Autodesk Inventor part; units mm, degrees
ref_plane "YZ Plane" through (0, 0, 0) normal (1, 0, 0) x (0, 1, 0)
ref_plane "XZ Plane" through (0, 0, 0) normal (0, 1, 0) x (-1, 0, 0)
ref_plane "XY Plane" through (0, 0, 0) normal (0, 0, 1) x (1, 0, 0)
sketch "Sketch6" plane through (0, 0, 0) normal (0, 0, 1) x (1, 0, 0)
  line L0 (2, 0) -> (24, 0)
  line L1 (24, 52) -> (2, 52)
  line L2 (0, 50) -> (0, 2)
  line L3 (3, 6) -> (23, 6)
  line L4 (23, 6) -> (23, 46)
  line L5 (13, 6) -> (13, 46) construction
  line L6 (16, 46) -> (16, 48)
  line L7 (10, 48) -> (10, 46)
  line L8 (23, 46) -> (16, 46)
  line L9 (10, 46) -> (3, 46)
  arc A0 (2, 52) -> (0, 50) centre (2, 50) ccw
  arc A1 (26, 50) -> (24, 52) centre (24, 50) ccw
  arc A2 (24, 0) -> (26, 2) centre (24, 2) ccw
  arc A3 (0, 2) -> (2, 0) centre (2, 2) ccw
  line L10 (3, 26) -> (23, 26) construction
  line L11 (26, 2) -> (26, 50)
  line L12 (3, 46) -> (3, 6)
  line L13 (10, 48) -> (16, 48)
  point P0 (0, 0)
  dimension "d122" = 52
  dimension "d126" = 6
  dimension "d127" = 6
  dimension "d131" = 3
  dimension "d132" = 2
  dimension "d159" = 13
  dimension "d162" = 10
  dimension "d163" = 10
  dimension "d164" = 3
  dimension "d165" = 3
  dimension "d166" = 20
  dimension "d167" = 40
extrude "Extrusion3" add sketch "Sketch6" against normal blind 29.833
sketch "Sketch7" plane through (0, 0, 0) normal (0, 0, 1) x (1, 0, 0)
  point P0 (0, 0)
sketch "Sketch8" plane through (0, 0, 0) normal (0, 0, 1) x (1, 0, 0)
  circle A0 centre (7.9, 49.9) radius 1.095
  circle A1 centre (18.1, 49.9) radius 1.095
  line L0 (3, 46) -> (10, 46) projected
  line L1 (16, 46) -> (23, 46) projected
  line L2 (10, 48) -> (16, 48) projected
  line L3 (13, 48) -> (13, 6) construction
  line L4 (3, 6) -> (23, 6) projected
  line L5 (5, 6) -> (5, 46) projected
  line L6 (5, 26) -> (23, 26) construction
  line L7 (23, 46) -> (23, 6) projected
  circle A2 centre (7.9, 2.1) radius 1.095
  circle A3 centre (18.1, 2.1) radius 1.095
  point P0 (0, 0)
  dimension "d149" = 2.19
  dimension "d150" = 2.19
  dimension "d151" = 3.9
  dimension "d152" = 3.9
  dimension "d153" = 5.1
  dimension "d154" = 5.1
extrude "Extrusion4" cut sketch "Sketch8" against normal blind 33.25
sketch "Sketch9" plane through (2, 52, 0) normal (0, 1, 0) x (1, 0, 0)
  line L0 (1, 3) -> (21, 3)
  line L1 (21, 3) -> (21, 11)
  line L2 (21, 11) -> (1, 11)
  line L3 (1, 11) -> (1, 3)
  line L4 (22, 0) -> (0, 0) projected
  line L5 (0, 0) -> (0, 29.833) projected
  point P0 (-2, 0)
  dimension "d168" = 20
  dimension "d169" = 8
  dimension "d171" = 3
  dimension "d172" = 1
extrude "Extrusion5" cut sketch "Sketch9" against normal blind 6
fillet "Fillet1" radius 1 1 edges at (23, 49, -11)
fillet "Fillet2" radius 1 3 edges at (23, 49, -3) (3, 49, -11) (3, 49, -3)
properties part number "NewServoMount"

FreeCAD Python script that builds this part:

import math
import FreeCAD as App
import Part
import Sketcher
from FreeCAD import Vector
Q = App.Units.Quantity


def edges_at(feature, points):
    """Names of the edges that pass closest to the given points."""
    edges = feature.Shape.Edges
    near = lambda p: min(range(len(edges)), key=lambda i: edges[i].distToShape(Part.Vertex(*p))[0])
    return sorted({f"Edge{near(p) + 1}" for p in points})


def add_polygon(sketch, points):
    """Adds a closed chain of lines whose ends are joined by coincident constraints."""
    first, n = sketch.GeometryCount, len(points)
    for a, b in zip(points, points[1:] + points[:1]):
        sketch.addGeometry(Part.LineSegment(App.Vector(*a, 0), App.Vector(*b, 0)), False)
    for i in range(n):
        sketch.addConstraint(Sketcher.Constraint("Coincident", first + i, 2, first + (i + 1) % n, 1))

doc = App.newDocument("Part")
body = doc.addObject("PartDesign::Body", "Body")

# Sketch on XY plane
sketch1 = body.newObject("Sketcher::SketchObject", "Sketch")
sketch1.AttachmentSupport = (doc.getObject("XY_Plane"), [""])
sketch1.MapMode = "FlatFace"
sketch1.addGeometry(Part.ArcOfCircle(Part.Circle(Vector(2, 2, 0), Vector(0, 0, 1), 2), math.radians(180), math.radians(270)), False)  # 0
sketch1.addGeometry(Part.LineSegment(Vector(2, 0, 0), Vector(24, 0, 0)), False)  # 1
sketch1.addGeometry(Part.ArcOfCircle(Part.Circle(Vector(24, 2, 0), Vector(0, 0, 1), 2), math.radians(-90), math.radians(0)), False)  # 2
sketch1.addGeometry(Part.LineSegment(Vector(26, 2, 0), Vector(26, 50, 0)), False)  # 3
sketch1.addGeometry(Part.ArcOfCircle(Part.Circle(Vector(24, 50, 0), Vector(0, 0, 1), 2), math.radians(0), math.radians(90)), False)  # 4
sketch1.addGeometry(Part.LineSegment(Vector(24, 52, 0), Vector(2, 52, 0)), False)  # 5
sketch1.addGeometry(Part.ArcOfCircle(Part.Circle(Vector(2, 50, 0), Vector(0, 0, 1), 2), math.radians(90), math.radians(180)), False)  # 6
sketch1.addGeometry(Part.LineSegment(Vector(0, 50, 0), Vector(0, 2, 0)), False)  # 7
add_polygon(sketch1, [(23, 6), (3, 6), (3, 46), (10, 46), (10, 48), (16, 48), (16, 46), (23, 46)])  # lines 8-15
sketch1.addConstraint([
    Sketcher.Constraint("Tangent", 0, 2, 1, 1),
    Sketcher.Constraint("Tangent", 1, 2, 2, 1),
    Sketcher.Constraint("Tangent", 2, 2, 3, 1),
    Sketcher.Constraint("Tangent", 3, 2, 4, 1),
    Sketcher.Constraint("Tangent", 4, 2, 5, 1),
    Sketcher.Constraint("Tangent", 5, 2, 6, 1),
    Sketcher.Constraint("Tangent", 6, 2, 7, 1),
    Sketcher.Constraint("Tangent", 7, 2, 0, 1),
    Sketcher.Constraint("Horizontal", 1),
    Sketcher.Constraint("Vertical", 3),
    Sketcher.Constraint("Horizontal", 5),
    Sketcher.Constraint("Vertical", 7),
    Sketcher.Constraint("Horizontal", 8),
    Sketcher.Constraint("Vertical", 9),
    Sketcher.Constraint("Horizontal", 10),
    Sketcher.Constraint("Vertical", 11),
    Sketcher.Constraint("Horizontal", 12),
    Sketcher.Constraint("Vertical", 13),
    Sketcher.Constraint("Horizontal", 14),
    Sketcher.Constraint("Vertical", 15),
    Sketcher.Constraint("Equal", 0, 2),
    Sketcher.Constraint("Equal", 2, 4),
    Sketcher.Constraint("Equal", 4, 6),
    Sketcher.Constraint("PointOnObject", 0, 2, -1),
    Sketcher.Constraint("PointOnObject", 6, 2, -2),
    Sketcher.Constraint("Horizontal", 10, 2, 13, 2),
    Sketcher.Constraint("Equal", 10, 14),
    Sketcher.Constraint("Radius", 0, Q("2 mm")),
    Sketcher.Constraint("DistanceX", 8, 2, 8, 1, Q("20 mm")),
    Sketcher.Constraint("DistanceX", 12, 1, 12, 2, Q("6 mm")),
    Sketcher.Constraint("DistanceY", 9, 1, 9, 2, Q("40 mm")),
    Sketcher.Constraint("DistanceY", 11, 1, 11, 2, Q("2 mm")),
    Sketcher.Constraint("DistanceY", -1, 1, 4, 2, Q("52 mm")),
    Sketcher.Constraint("DistanceX", -1, 1, 8, 2, Q("3 mm")),
    Sketcher.Constraint("DistanceY", -1, 1, 8, 2, Q("6 mm")),
    Sketcher.Constraint("DistanceX", 12, 2, 3, 2, Q("10 mm")),
])
pad1 = body.newObject("PartDesign::Pad", "Pad")
pad1.Profile = sketch1
pad1.Length = 29.833
pad1.Reversed = True

# Sketch on XY plane
sketch2 = body.newObject("Sketcher::SketchObject", "Sketch001")
sketch2.AttachmentSupport = (doc.getObject("XY_Plane"), [""])
sketch2.MapMode = "FlatFace"
sketch2.addGeometry([
    Part.Circle(Vector(7.9, 49.9, 0), Vector(0, 0, 1), 1.095),
    Part.Circle(Vector(18.1, 49.9, 0), Vector(0, 0, 1), 1.095),
    Part.Circle(Vector(7.9, 2.1, 0), Vector(0, 0, 1), 1.095),
    Part.Circle(Vector(18.1, 2.1, 0), Vector(0, 0, 1), 1.095),
], False)
sketch2.addConstraint([
    Sketcher.Constraint("Equal", 0, 1),
    Sketcher.Constraint("Equal", 1, 2),
    Sketcher.Constraint("Equal", 2, 3),
    Sketcher.Constraint("Horizontal", 0, 3, 1, 3),
    Sketcher.Constraint("Horizontal", 2, 3, 3, 3),
    Sketcher.Constraint("Vertical", 0, 3, 2, 3),
    Sketcher.Constraint("Vertical", 1, 3, 3, 3),
    Sketcher.Constraint("Diameter", 0, Q("2.19 mm")),
    Sketcher.Constraint("DistanceX", -1, 1, 0, 3, Q("7.9 mm")),
    Sketcher.Constraint("DistanceY", -1, 1, 0, 3, Q("49.9 mm")),
    Sketcher.Constraint("DistanceX", -1, 1, 1, 3, Q("18.1 mm")),
    Sketcher.Constraint("DistanceY", -1, 1, 2, 3, Q("2.1 mm")),
])
pocket1 = body.newObject("PartDesign::Pocket", "Pocket")
pocket1.Profile = sketch2
pocket1.Length = 33.25

# Sketch on XZ plane
sketch3 = body.newObject("Sketcher::SketchObject", "Sketch002")
sketch3.AttachmentSupport = (doc.getObject("XZ_Plane"), [""])
sketch3.MapMode = "FlatFace"
sketch3.AttachmentOffset = App.Placement(Vector(0, 0, -52), App.Rotation())
add_polygon(sketch3, [(3, -11), (3, -3), (23, -3), (23, -11)])  # lines 0-3
sketch3.addConstraint([
    Sketcher.Constraint("Vertical", 0),
    Sketcher.Constraint("Horizontal", 1),
    Sketcher.Constraint("Vertical", 2),
    Sketcher.Constraint("Horizontal", 3),
    Sketcher.Constraint("DistanceX", 1, 1, 1, 2, Q("20 mm")),
    Sketcher.Constraint("DistanceY", 0, 1, 0, 2, Q("8 mm")),
    Sketcher.Constraint("DistanceX", -1, 1, 0, 2, Q("3 mm")),
    Sketcher.Constraint("DistanceY", 0, 2, -1, 1, Q("3 mm")),
])
pocket2 = body.newObject("PartDesign::Pocket", "Pocket001")
pocket2.Profile = sketch3
pocket2.Length = 6
pocket2.Reversed = True
doc.recompute()

fillet = body.newObject("PartDesign::Fillet", "Fillet")
fillet.Base = (pocket2, edges_at(pocket2, [(23, 49, -11)]))
fillet.Radius = 1
doc.recompute()

fillet2 = body.newObject("PartDesign::Fillet", "Fillet001")
fillet2.Base = (fillet, edges_at(fillet, [(23, 49, -3), (3, 49, -11), (3, 49, -3)]))
fillet2.Radius = 1

doc.recompute()
